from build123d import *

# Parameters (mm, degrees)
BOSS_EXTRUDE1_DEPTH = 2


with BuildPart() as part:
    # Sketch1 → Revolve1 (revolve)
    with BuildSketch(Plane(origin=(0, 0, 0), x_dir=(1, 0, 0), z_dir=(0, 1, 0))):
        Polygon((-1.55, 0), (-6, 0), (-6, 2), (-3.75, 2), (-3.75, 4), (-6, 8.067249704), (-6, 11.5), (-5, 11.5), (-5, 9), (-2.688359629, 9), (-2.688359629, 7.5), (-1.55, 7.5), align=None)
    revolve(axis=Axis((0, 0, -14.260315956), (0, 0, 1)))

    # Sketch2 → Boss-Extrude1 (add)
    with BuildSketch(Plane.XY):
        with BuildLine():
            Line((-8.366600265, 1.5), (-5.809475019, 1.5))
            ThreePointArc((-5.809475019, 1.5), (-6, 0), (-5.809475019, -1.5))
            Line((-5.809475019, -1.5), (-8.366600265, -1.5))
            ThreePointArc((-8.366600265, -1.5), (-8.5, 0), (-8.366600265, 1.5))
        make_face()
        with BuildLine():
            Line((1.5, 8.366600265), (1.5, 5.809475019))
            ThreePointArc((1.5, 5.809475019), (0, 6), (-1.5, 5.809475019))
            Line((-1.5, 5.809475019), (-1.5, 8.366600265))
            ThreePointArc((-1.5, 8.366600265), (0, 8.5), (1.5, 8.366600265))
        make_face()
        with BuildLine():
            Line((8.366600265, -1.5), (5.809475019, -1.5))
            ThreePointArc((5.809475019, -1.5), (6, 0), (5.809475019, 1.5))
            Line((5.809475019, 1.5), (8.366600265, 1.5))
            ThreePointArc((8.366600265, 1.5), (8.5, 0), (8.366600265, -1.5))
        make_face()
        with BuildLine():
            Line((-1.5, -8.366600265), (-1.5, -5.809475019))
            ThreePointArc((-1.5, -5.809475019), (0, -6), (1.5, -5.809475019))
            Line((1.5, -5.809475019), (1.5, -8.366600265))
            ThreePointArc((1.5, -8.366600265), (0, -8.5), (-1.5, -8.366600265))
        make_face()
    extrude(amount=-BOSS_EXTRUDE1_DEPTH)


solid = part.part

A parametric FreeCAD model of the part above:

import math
import FreeCAD as App
import Part
import Sketcher

doc = App.newDocument("Part")
params = doc.addObject("Spreadsheet::Sheet", "Params")
for row, (alias, value) in enumerate([
    ("sketch1_width", "1 mm"),
    ("sketch1_height", "2 mm"),
    ("sketch1_height2", "7.5 mm"),
    ("sketch1_height3", "1.5 mm"),
    ("sketch1_height4", "2.5 mm"),
    ("revolution_angle", "360 deg"),
    ("sketch2_radius", "6 mm"),
    ("sketch2_radius2", "8.5 mm"),
    ("pad1_length", "2 mm"),
], start=1):
    params.set(f"A{row}", alias)
    params.set(f"B{row}", "=" + value)
    params.setAlias(f"B{row}", alias)

body = doc.addObject("PartDesign::Body", "Body")

# Sketch on XZ plane
sketch1 = doc.addObject("Sketcher::SketchObject", "Sketch")
body.addObject(sketch1)
sketch1.AttachmentSupport = (doc.XZ_Plane, [""])
sketch1.MapMode = "FlatFace"
sketch1.addGeometry(Part.LineSegment(App.Vector(-6, 0, 0), App.Vector(-1.6, 0, 0)), False)
sketch1.addGeometry(Part.LineSegment(App.Vector(-1.6, 0, 0), App.Vector(-1.6, -7.5, 0)), False)
sketch1.addGeometry(Part.LineSegment(App.Vector(-1.6, -7.5, 0), App.Vector(-2.7, -7.5, 0)), False)
sketch1.addGeometry(Part.LineSegment(App.Vector(-2.7, -7.5, 0), App.Vector(-2.7, -9, 0)), False)
sketch1.addGeometry(Part.LineSegment(App.Vector(-2.7, -9, 0), App.Vector(-5, -9, 0)), False)
sketch1.addGeometry(Part.LineSegment(App.Vector(-5, -9, 0), App.Vector(-5, -11.5, 0)), False)
sketch1.addGeometry(Part.LineSegment(App.Vector(-5, -11.5, 0), App.Vector(-6, -11.5, 0)), False)
sketch1.addGeometry(Part.LineSegment(App.Vector(-6, -11.5, 0), App.Vector(-6, -8.1, 0)), False)
sketch1.addGeometry(Part.LineSegment(App.Vector(-6, -8.1, 0), App.Vector(-3.8, -4, 0)), False)
sketch1.addGeometry(Part.LineSegment(App.Vector(-3.8, -4, 0), App.Vector(-3.8, -2, 0)), False)
sketch1.addGeometry(Part.LineSegment(App.Vector(-3.8, -2, 0), App.Vector(-6, -2, 0)), False)
sketch1.addGeometry(Part.LineSegment(App.Vector(-6, -2, 0), App.Vector(-6, 0, 0)), False)
sketch1.addConstraint(Sketcher.Constraint("Coincident", 0, 2, 1, 1))
sketch1.addConstraint(Sketcher.Constraint("Coincident", 1, 2, 2, 1))
sketch1.addConstraint(Sketcher.Constraint("Coincident", 2, 2, 3, 1))
sketch1.addConstraint(Sketcher.Constraint("Coincident", 3, 2, 4, 1))
sketch1.addConstraint(Sketcher.Constraint("Coincident", 4, 2, 5, 1))
sketch1.addConstraint(Sketcher.Constraint("Coincident", 5, 2, 6, 1))
sketch1.addConstraint(Sketcher.Constraint("Coincident", 6, 2, 7, 1))
sketch1.addConstraint(Sketcher.Constraint("Coincident", 7, 2, 8, 1))
sketch1.addConstraint(Sketcher.Constraint("Coincident", 8, 2, 9, 1))
sketch1.addConstraint(Sketcher.Constraint("Coincident", 9, 2, 10, 1))
sketch1.addConstraint(Sketcher.Constraint("Coincident", 10, 2, 11, 1))
sketch1.addConstraint(Sketcher.Constraint("Coincident", 11, 2, 0, 1))
sketch1.addConstraint(Sketcher.Constraint("Horizontal", 0))
sketch1.addConstraint(Sketcher.Constraint("Vertical", 1))
sketch1.addConstraint(Sketcher.Constraint("Horizontal", 2))
sketch1.addConstraint(Sketcher.Constraint("Vertical", 3))
sketch1.addConstraint(Sketcher.Constraint("Horizontal", 4))
sketch1.addConstraint(Sketcher.Constraint("Vertical", 5))
sketch1.addConstraint(Sketcher.Constraint("Horizontal", 6))
sketch1.addConstraint(Sketcher.Constraint("Vertical", 7))
sketch1.addConstraint(Sketcher.Constraint("Vertical", 9))
sketch1.addConstraint(Sketcher.Constraint("Horizontal", 10))
sketch1.addConstraint(Sketcher.Constraint("Vertical", 11))
sketch1.addConstraint(Sketcher.Constraint("PointOnObject", 0, 2, -1))
sketch1.addConstraint(Sketcher.Constraint("Vertical", 7, 2, 10, 2))
sketch1.addConstraint(Sketcher.Constraint("Equal", 9, 11))
sketch1.addConstraint(Sketcher.Constraint("DistanceX", 6, 2, 6, 1, 1.0))
sketch1.addConstraint(Sketcher.Constraint("DistanceY", 9, 1, 9, 2, 2.0))
sketch1.addConstraint(Sketcher.Constraint("DistanceY", 1, 2, 1, 1, 7.5))
sketch1.addConstraint(Sketcher.Constraint("DistanceY", 3, 2, 3, 1, 1.5))
sketch1.addConstraint(Sketcher.Constraint("DistanceY", 5, 2, 5, 1, 2.5))
sketch1.addConstraint(Sketcher.Constraint("DistanceX", 4, 2, -1, 1, 5.0))
sketch1.addConstraint(Sketcher.Constraint("DistanceX", 0, 1, 0, 2, 4.45))
sketch1.addConstraint(Sketcher.Constraint("DistanceX", 10, 2, 10, 1, 2.25))
sketch1.addConstraint(Sketcher.Constraint("DistanceX", 2, 2, 2, 1, 1.13836))
sketch1.addConstraint(Sketcher.Constraint("DistanceY", 7, 1, 7, 2, 3.43275))
sketch1.setExpression("Constraints[26]", "Params.sketch1_width")
sketch1.setExpression("Constraints[27]", "Params.sketch1_height")
sketch1.setExpression("Constraints[28]", "Params.sketch1_height2")
sketch1.setExpression("Constraints[29]", "Params.sketch1_height3")
sketch1.setExpression("Constraints[30]", "Params.sketch1_height4")
revolution = doc.addObject("PartDesign::Revolution", "Revolution")
body.addObject(revolution)
revolution.Profile = sketch1
revolution.ReferenceAxis = (sketch1, ["V_Axis"])
revolution.setExpression("Angle", "Params.revolution_angle")

# Sketch on XY plane
sketch2 = doc.addObject("Sketcher::SketchObject", "Sketch001")
body.addObject(sketch2)
sketch2.AttachmentSupport = (doc.XY_Plane, [""])
sketch2.MapMode = "FlatFace"
sketch2.addGeometry(Part.LineSegment(App.Vector(-5.8, 1.5, 0), App.Vector(-8.4, 1.5, 0)), False)
sketch2.addGeometry(Part.ArcOfCircle(Part.Circle(App.Vector(0, 0, 0), App.Vector(0, 0, 1), 8.5), math.radians(170), math.radians(190)), False)
sketch2.addGeometry(Part.LineSegment(App.Vector(-8.4, -1.5, 0), App.Vector(-5.8, -1.5, 0)), False)
sketch2.addGeometry(Part.ArcOfCircle(Part.Circle(App.Vector(0, 0, 0), App.Vector(0, 0, 1), 6), math.radians(166), math.radians(194)), False)
sketch2.addGeometry(Part.LineSegment(App.Vector(1.5, 5.8, 0), App.Vector(1.5, 8.4, 0)), False)
sketch2.addGeometry(Part.ArcOfCircle(Part.Circle(App.Vector(0, 0, 0), App.Vector(0, 0, 1), 8.5), math.radians(80), math.radians(100)), False)
sketch2.addGeometry(Part.LineSegment(App.Vector(-1.5, 8.4, 0), App.Vector(-1.5, 5.8, 0)), False)
sketch2.addGeometry(Part.ArcOfCircle(Part.Circle(App.Vector(0, 0, 0), App.Vector(0, 0, 1), 6), math.radians(76), math.radians(104)), False)
sketch2.addGeometry(Part.LineSegment(App.Vector(5.8, -1.5, 0), App.Vector(8.4, -1.5, 0)), False)
sketch2.addGeometry(Part.ArcOfCircle(Part.Circle(App.Vector(0, 0, 0), App.Vector(0, 0, 1), 8.5), math.radians(-10), math.radians(10)), False)
sketch2.addGeometry(Part.LineSegment(App.Vector(8.4, 1.5, 0), App.Vector(5.8, 1.5, 0)), False)
sketch2.addGeometry(Part.ArcOfCircle(Part.Circle(App.Vector(0, 0, 0), App.Vector(0, 0, 1), 6), math.radians(-14), math.radians(14)), False)
sketch2.addGeometry(Part.LineSegment(App.Vector(-1.5, -5.8, 0), App.Vector(-1.5, -8.4, 0)), False)
sketch2.addGeometry(Part.ArcOfCircle(Part.Circle(App.Vector(0, 0, 0), App.Vector(0, 0, 1), 8.5), math.radians(-100), math.radians(-80)), False)
sketch2.addGeometry(Part.LineSegment(App.Vector(1.5, -8.4, 0), App.Vector(1.5, -5.8, 0)), False)
sketch2.addGeometry(Part.ArcOfCircle(Part.Circle(App.Vector(0, 0, 0), App.Vector(0, 0, 1), 6), math.radians(-104), math.radians(-76)), False)
sketch2.addConstraint(Sketcher.Constraint("Coincident", 0, 2, 1, 1))
sketch2.addConstraint(Sketcher.Constraint("Coincident", 1, 2, 2, 1))
sketch2.addConstraint(Sketcher.Constraint("Coincident", 2, 2, 3, 2))
sketch2.addConstraint(Sketcher.Constraint("Coincident", 3, 1, 0, 1))
sketch2.addConstraint(Sketcher.Constraint("Coincident", 4, 2, 5, 1))
sketch2.addConstraint(Sketcher.Constraint("Coincident", 5, 2, 6, 1))
sketch2.addConstraint(Sketcher.Constraint("Coincident", 6, 2, 7, 2))
sketch2.addConstraint(Sketcher.Constraint("Coincident", 7, 1, 4, 1))
sketch2.addConstraint(Sketcher.Constraint("Coincident", 8, 2, 9, 1))
sketch2.addConstraint(Sketcher.Constraint("Coincident", 9, 2, 10, 1))
sketch2.addConstraint(Sketcher.Constraint("Coincident", 10, 2, 11, 2))
sketch2.addConstraint(Sketcher.Constraint("Coincident", 11, 1, 8, 1))
sketch2.addConstraint(Sketcher.Constraint("Coincident", 12, 2, 13, 1))
sketch2.addConstraint(Sketcher.Constraint("Coincident", 13, 2, 14, 1))
sketch2.addConstraint(Sketcher.Constraint("Coincident", 14, 2, 15, 2))
sketch2.addConstraint(Sketcher.Constraint("Coincident", 15, 1, 12, 1))
sketch2.addConstraint(Sketcher.Constraint("Horizontal", 0))
sketch2.addConstraint(Sketcher.Constraint("Horizontal", 2))
sketch2.addConstraint(Sketcher.Constraint("Vertical", 4))
sketch2.addConstraint(Sketcher.Constraint("Vertical", 6))
sketch2.addConstraint(Sketcher.Constraint("Horizontal", 8))
sketch2.addConstraint(Sketcher.Constraint("Horizontal", 10))
sketch2.addConstraint(Sketcher.Constraint("Vertical", 12))
sketch2.addConstraint(Sketcher.Constraint("Vertical", 14))
sketch2.addConstraint(Sketcher.Constraint("Coincident", 1, 3, -1, 1))
sketch2.addConstraint(Sketcher.Constraint("Coincident", 3, 3, -1, 1))
sketch2.addConstraint(Sketcher.Constraint("Coincident", 5, 3, -1, 1))
sketch2.addConstraint(Sketcher.Constraint("Coincident", 7, 3, -1, 1))
sketch2.addConstraint(Sketcher.Constraint("Coincident", 9, 3, -1, 1))
sketch2.addConstraint(Sketcher.Constraint("Coincident", 11, 3, -1, 1))
sketch2.addConstraint(Sketcher.Constraint("Coincident", 13, 3, -1, 1))
sketch2.addConstraint(Sketcher.Constraint("Coincident", 15, 3, -1, 1))
sketch2.addConstraint(Sketcher.Constraint("Equal", 1, 5))
sketch2.addConstraint(Sketcher.Constraint("Equal", 3, 7))
sketch2.addConstraint(Sketcher.Constraint("Equal", 5, 9))
sketch2.addConstraint(Sketcher.Constraint("Equal", 7, 11))
sketch2.addConstraint(Sketcher.Constraint("Equal", 9, 13))
sketch2.addConstraint(Sketcher.Constraint("Equal", 11, 15))
sketch2.addConstraint(Sketcher.Constraint("Horizontal", 4, 2, 5, 2))
sketch2.addConstraint(Sketcher.Constraint("Horizontal", 2, 2, 8, 2))
sketch2.addConstraint(Sketcher.Constraint("Horizontal", 3, 1, 9, 2))
sketch2.addConstraint(Sketcher.Constraint("Horizontal", 12, 2, 13, 2))
sketch2.addConstraint(Sketcher.Constraint("Vertical", 0, 2, 1, 2))
sketch2.addConstraint(Sketcher.Constraint("Vertical", 6, 2, 12, 2))
sketch2.addConstraint(Sketcher.Constraint("Equal", 10, 4))
sketch2.addConstraint(Sketcher.Constraint("Radius", 3, 6.0))
sketch2.addConstraint(Sketcher.Constraint("Radius", 1, 8.5))
sketch2.addConstraint(Sketcher.Constraint("DistanceY", 1, 2, 0, 2, 3.0))
sketch2.setExpression("Constraints[45]", "Params.sketch2_radius")
sketch2.setExpression("Constraints[46]", "Params.sketch2_radius2")
pad1 = doc.addObject("PartDesign::Pad", "Pad")
body.addObject(pad1)
pad1.Profile = sketch2
pad1.setExpression("Length", "Params.pad1_length")
pad1.Reversed = True

doc.recompute()
